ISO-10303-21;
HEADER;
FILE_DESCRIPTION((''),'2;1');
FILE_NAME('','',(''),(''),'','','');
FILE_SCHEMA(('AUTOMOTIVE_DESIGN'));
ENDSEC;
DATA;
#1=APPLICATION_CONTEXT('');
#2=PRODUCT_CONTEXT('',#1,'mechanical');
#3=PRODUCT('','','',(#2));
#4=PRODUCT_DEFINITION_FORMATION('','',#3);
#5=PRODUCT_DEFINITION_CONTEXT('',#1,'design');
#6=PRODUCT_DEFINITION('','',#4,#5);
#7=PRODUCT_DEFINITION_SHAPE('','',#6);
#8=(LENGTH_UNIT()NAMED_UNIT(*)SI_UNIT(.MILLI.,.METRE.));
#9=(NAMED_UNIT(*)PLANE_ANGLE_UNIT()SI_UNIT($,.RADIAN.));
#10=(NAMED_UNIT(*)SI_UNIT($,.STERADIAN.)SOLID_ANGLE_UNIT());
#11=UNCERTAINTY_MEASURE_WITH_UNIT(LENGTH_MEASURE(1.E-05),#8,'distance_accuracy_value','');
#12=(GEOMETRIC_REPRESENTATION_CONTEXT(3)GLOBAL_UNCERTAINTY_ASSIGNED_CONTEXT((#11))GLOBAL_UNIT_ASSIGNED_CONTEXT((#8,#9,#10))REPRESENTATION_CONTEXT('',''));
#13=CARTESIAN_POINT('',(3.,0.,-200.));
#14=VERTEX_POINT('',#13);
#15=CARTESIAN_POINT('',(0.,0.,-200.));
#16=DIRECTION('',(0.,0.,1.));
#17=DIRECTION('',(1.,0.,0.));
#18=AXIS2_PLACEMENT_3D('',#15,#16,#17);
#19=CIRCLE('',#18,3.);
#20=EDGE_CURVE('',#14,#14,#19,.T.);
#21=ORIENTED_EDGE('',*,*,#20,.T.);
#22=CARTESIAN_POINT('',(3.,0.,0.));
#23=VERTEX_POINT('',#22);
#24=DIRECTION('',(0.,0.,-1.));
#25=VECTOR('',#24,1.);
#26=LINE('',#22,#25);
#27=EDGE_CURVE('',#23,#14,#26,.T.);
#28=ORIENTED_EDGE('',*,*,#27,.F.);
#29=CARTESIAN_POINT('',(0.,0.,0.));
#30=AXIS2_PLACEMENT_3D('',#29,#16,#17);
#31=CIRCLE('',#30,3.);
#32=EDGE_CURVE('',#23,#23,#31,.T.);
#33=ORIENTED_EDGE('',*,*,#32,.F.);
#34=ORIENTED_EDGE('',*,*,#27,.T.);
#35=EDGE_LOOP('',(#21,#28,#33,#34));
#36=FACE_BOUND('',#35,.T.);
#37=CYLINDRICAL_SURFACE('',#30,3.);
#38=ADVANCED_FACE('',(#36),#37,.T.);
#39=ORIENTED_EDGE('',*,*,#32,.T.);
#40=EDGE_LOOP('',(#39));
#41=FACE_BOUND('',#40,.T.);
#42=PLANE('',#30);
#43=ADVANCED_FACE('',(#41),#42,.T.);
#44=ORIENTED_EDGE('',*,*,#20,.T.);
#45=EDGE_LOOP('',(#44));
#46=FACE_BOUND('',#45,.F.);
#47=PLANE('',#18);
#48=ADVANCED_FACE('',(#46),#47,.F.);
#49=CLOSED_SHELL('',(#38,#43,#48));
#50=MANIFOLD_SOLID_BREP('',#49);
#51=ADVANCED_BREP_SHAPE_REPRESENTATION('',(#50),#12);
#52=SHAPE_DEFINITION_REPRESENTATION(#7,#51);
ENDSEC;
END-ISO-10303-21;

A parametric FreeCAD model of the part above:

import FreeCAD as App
import Part
import Sketcher
Q = App.Units.Quantity

doc = App.newDocument("Part")
body = doc.addObject("PartDesign::Body", "Body")

# Sketch on XY plane
sketch1 = body.newObject("Sketcher::SketchObject", "Sketch")
sketch1.AttachmentSupport = (doc.getObject("XY_Plane"), [""])
sketch1.MapMode = "FlatFace"
sketch1.addGeometry(Part.Circle(App.Vector(0, 0, 0), App.Vector(0, 0, 1), 3), False)
sketch1.addConstraint(Sketcher.Constraint("Coincident", 0, 3, -1, 1))
sketch1.addConstraint(Sketcher.Constraint("Diameter", 0, Q("6 mm")))
pad1 = body.newObject("PartDesign::Pad", "Pad")
pad1.Profile = sketch1
pad1.Length = 200
pad1.Reversed = True

doc.recompute()
